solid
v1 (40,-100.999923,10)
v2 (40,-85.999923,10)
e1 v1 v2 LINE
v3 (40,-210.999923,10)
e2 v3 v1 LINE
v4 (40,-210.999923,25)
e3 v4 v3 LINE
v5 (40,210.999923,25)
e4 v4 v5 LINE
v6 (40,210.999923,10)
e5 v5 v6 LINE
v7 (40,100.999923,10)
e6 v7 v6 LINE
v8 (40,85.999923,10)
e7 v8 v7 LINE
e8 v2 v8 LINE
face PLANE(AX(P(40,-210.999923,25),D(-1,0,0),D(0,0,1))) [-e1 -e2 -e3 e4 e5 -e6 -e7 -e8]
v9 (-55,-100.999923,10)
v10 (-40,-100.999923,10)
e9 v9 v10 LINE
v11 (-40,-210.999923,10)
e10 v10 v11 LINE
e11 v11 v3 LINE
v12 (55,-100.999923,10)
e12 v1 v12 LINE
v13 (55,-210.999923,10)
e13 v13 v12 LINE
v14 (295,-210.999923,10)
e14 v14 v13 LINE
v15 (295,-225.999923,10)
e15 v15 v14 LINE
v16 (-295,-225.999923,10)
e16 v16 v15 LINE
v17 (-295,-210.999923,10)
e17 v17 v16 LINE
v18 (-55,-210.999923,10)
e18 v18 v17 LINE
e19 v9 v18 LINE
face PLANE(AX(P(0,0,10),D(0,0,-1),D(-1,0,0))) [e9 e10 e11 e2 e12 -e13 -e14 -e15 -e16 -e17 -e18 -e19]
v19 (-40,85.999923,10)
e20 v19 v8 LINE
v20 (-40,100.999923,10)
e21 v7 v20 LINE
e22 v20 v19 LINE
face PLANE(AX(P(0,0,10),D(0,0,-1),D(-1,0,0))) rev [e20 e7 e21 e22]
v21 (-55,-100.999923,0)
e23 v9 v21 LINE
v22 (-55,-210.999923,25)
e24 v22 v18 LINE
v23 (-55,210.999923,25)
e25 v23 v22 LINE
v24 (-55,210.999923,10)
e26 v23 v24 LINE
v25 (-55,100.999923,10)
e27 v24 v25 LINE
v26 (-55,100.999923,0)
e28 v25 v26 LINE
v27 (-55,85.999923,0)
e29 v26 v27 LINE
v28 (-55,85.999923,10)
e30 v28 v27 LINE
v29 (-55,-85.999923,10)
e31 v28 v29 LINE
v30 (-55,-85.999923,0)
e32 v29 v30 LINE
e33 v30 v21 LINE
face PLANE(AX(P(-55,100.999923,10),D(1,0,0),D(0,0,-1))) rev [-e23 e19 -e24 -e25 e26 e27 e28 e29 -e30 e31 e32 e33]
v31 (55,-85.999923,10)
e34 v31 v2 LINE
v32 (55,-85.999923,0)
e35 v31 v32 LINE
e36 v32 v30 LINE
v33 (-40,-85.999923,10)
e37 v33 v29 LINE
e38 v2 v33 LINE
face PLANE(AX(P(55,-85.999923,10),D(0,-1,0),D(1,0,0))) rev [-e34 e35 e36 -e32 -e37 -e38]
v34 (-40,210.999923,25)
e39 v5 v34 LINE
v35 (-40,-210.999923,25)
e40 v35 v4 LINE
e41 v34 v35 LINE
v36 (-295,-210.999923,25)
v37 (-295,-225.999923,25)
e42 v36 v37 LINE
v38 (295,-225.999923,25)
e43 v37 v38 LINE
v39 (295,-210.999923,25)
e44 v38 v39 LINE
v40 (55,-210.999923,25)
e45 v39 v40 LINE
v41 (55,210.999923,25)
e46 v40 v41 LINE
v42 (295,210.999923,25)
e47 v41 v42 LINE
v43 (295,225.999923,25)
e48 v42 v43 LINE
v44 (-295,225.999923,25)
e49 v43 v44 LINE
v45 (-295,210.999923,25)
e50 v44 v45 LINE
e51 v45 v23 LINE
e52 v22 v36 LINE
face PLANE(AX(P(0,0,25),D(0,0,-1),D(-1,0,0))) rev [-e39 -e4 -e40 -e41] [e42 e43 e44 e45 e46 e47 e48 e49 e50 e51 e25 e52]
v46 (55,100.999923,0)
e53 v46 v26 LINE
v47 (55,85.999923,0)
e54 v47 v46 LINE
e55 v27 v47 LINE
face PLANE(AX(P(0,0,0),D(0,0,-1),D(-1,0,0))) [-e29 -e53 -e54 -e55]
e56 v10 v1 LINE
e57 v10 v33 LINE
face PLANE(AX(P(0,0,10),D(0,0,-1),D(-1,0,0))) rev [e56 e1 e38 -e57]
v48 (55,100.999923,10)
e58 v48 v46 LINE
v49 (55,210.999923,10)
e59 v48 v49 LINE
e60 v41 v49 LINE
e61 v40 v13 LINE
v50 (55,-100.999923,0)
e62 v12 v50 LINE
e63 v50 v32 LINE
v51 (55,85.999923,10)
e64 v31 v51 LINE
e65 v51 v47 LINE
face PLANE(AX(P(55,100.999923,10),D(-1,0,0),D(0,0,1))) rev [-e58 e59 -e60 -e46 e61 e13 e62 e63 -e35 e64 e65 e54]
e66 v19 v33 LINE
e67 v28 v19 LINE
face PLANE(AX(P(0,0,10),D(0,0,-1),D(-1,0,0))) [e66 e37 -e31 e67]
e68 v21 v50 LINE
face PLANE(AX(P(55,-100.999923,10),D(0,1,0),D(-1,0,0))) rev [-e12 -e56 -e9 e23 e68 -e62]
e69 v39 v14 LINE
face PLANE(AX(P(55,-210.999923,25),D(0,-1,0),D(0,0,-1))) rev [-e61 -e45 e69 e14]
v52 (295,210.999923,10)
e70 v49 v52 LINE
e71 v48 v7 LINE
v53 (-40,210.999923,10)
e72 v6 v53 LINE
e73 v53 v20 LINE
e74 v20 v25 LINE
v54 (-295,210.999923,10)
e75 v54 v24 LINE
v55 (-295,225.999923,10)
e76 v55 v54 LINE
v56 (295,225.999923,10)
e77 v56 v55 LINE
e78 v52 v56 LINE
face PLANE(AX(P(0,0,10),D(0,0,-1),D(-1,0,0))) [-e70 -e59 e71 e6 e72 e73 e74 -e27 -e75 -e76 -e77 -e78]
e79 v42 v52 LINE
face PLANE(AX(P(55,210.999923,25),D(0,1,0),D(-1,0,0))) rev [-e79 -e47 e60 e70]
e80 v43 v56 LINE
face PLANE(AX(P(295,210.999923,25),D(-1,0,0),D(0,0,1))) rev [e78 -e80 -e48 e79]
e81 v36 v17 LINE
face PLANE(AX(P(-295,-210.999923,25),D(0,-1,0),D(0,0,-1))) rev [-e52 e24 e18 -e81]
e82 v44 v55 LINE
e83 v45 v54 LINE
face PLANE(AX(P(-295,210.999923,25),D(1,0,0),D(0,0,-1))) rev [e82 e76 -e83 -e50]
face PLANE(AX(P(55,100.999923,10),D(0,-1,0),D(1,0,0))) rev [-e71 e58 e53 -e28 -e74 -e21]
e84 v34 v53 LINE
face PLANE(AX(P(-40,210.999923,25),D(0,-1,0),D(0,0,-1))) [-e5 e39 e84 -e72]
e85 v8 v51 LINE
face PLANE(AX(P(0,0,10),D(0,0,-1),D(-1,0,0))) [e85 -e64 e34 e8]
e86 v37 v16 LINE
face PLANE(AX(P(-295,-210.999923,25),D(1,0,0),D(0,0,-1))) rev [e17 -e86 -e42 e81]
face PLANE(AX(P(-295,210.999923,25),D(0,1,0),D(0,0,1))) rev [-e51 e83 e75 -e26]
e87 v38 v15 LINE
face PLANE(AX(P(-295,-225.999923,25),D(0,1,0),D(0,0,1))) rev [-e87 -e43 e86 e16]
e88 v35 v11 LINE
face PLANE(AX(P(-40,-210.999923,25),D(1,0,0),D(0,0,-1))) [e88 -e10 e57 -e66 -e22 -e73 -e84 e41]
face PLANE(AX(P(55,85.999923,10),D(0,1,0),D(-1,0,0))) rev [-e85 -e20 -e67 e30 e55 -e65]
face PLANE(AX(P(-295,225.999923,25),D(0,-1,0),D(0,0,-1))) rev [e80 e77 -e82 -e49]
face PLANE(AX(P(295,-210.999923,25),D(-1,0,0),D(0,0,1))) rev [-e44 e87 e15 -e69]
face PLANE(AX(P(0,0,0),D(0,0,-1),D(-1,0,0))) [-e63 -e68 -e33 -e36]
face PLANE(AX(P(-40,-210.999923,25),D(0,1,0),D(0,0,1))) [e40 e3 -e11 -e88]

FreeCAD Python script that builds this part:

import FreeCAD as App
import Part
import Sketcher

V = App.Vector

doc = App.newDocument("Part")
body = doc.addObject("PartDesign::Body", "Body")

sketch1 = body.newObject("Sketcher::SketchObject", "Sketch")
sketch1.AttachmentSupport = (doc.getObject("XY_Plane"), [""])
sketch1.MapMode = "FlatFace"
sketch1.addGeometry([
    Part.LineSegment(V(-55, 101, 0), V(-55, 86, 0)),
    Part.LineSegment(V(-55, 86, 0), V(55, 86, 0)),
    Part.LineSegment(V(55, 86, 0), V(55, 101, 0)),
    Part.LineSegment(V(55, 101, 0), V(-55, 101, 0)),
], False)
sketch1.addConstraint([
    Sketcher.Constraint("Coincident", 0, 2, 1, 1),
    Sketcher.Constraint("Coincident", 1, 2, 2, 1),
    Sketcher.Constraint("Coincident", 2, 2, 3, 1),
    Sketcher.Constraint("Coincident", 3, 2, 0, 1),
    Sketcher.Constraint("Vertical", 0),
    Sketcher.Constraint("Horizontal", 1),
    Sketcher.Constraint("Vertical", 2),
    Sketcher.Constraint("Horizontal", 3),
    Sketcher.Constraint("DistanceX", 1, 1, 1, 2, 110.0),
    Sketcher.Constraint("DistanceY", 0, 2, 0, 1, 15.0),
    Sketcher.Constraint("DistanceX", 0, 2, -1, 1, 55.0),
    Sketcher.Constraint("DistanceY", -1, 1, 0, 2, 85.999923),
])
pad1 = body.newObject("PartDesign::Pad", "Pad")
pad1.Profile = sketch1
pad1.Length = 10
body2 = doc.addObject("PartDesign::Body", "Body001")

sketch2 = body2.newObject("Sketcher::SketchObject", "Sketch001")
sketch2.AttachmentSupport = (doc.getObject("XY_Plane001"), [""])
sketch2.MapMode = "FlatFace"
sketch2.addGeometry([
    Part.LineSegment(V(-55, -86, 0), V(-55, -101, 0)),
    Part.LineSegment(V(-55, -101, 0), V(55, -101, 0)),
    Part.LineSegment(V(55, -101, 0), V(55, -86, 0)),
    Part.LineSegment(V(55, -86, 0), V(-55, -86, 0)),
], False)
sketch2.addConstraint([
    Sketcher.Constraint("Coincident", 0, 2, 1, 1),
    Sketcher.Constraint("Coincident", 1, 2, 2, 1),
    Sketcher.Constraint("Coincident", 2, 2, 3, 1),
    Sketcher.Constraint("Coincident", 3, 2, 0, 1),
    Sketcher.Constraint("Vertical", 0),
    Sketcher.Constraint("Horizontal", 1),
    Sketcher.Constraint("Vertical", 2),
    Sketcher.Constraint("Horizontal", 3),
    Sketcher.Constraint("DistanceX", 1, 1, 1, 2, 110.0),
    Sketcher.Constraint("DistanceY", 0, 2, 0, 1, 15.0),
    Sketcher.Constraint("DistanceX", 0, 2, -1, 1, 55.0),
    Sketcher.Constraint("DistanceY", 0, 2, -1, 1, 100.999923),
])
pad2 = body2.newObject("PartDesign::Pad", "Pad001")
pad2.Profile = sketch2
pad2.Length = 10
body.AllowCompound = True
doc.recompute()

boolean = body.newObject("PartDesign::Boolean", "Boolean")
boolean.Type = "Fuse"
boolean.addObjects([body2])

sketch3 = body.newObject("Sketcher::SketchObject", "Sketch002")
sketch3.AttachmentSupport = (doc.getObject("XY_Plane"), [""])
sketch3.MapMode = "FlatFace"
sketch3.AttachmentOffset = App.Placement(V(0, 0, 10), App.Rotation())
sketch3.addGeometry([
    Part.LineSegment(V(55, -210.999923, 0), V(55, 210.999923, 0)),
    Part.LineSegment(V(55, 210.999923, 0), V(295, 210.999923, 0)),
    Part.LineSegment(V(295, 210.999923, 0), V(295, 225.999923, 0)),
    Part.LineSegment(V(295, 225.999923, 0), V(-295, 225.999923, 0)),
    Part.LineSegment(V(-295, 225.999923, 0), V(-295, 210.999923, 0)),
    Part.LineSegment(V(-295, 210.999923, 0), V(-55, 210.999923, 0)),
    Part.LineSegment(V(-55, 210.999923, 0), V(-55, -210.999923, 0)),
    Part.LineSegment(V(-55, -210.999923, 0), V(-295, -210.999923, 0)),
    Part.LineSegment(V(-295, -210.999923, 0), V(-295, -225.999923, 0)),
    Part.LineSegment(V(-295, -225.999923, 0), V(295, -225.999923, 0)),
    Part.LineSegment(V(295, -225.999923, 0), V(295, -210.999923, 0)),
    Part.LineSegment(V(295, -210.999923, 0), V(55, -210.999923, 0)),
    Part.LineSegment(V(40, -210.999923, 0), V(-40, -210.999923, 0)),
    Part.LineSegment(V(-40, -210.999923, 0), V(-40, 210.999923, 0)),
    Part.LineSegment(V(-40, 210.999923, 0), V(40, 210.999923, 0)),
    Part.LineSegment(V(40, 210.999923, 0), V(40, -210.999923, 0)),
], False)
sketch3.addConstraint([
    Sketcher.Constraint("Coincident", 0, 2, 1, 1),
    Sketcher.Constraint("Coincident", 1, 2, 2, 1),
    Sketcher.Constraint("Coincident", 2, 2, 3, 1),
    Sketcher.Constraint("Coincident", 3, 2, 4, 1),
    Sketcher.Constraint("Coincident", 4, 2, 5, 1),
    Sketcher.Constraint("Coincident", 5, 2, 6, 1),
    Sketcher.Constraint("Coincident", 6, 2, 7, 1),
    Sketcher.Constraint("Coincident", 7, 2, 8, 1),
    Sketcher.Constraint("Coincident", 8, 2, 9, 1),
    Sketcher.Constraint("Coincident", 9, 2, 10, 1),
    Sketcher.Constraint("Coincident", 10, 2, 11, 1),
    Sketcher.Constraint("Coincident", 11, 2, 0, 1),
    Sketcher.Constraint("Coincident", 12, 2, 13, 1),
    Sketcher.Constraint("Coincident", 13, 2, 14, 1),
    Sketcher.Constraint("Coincident", 14, 2, 15, 1),
    Sketcher.Constraint("Coincident", 15, 2, 12, 1),
    Sketcher.Constraint("Vertical", 0),
    Sketcher.Constraint("Horizontal", 1),
    Sketcher.Constraint("Vertical", 2),
    Sketcher.Constraint("Horizontal", 3),
    Sketcher.Constraint("Vertical", 4),
    Sketcher.Constraint("Horizontal", 5),
    Sketcher.Constraint("Vertical", 6),
    Sketcher.Constraint("Horizontal", 7),
    Sketcher.Constraint("Vertical", 8),
    Sketcher.Constraint("Horizontal", 9),
    Sketcher.Constraint("Vertical", 10),
    Sketcher.Constraint("Horizontal", 11),
    Sketcher.Constraint("Horizontal", 12),
    Sketcher.Constraint("Vertical", 13),
    Sketcher.Constraint("Horizontal", 14),
    Sketcher.Constraint("Vertical", 15),
    Sketcher.Constraint("Symmetric", 0, 2, 6, 2, -1, 1),
    Sketcher.Constraint("Symmetric", 2, 2, 8, 2, -1, 1),
    Sketcher.Constraint("Symmetric", 4, 2, 10, 2, -1, 1),
    Sketcher.Constraint("Symmetric", 12, 2, 14, 2, -1, 1),
    Sketcher.Constraint("Symmetric", 1, 2, 4, 2, -2),
    Sketcher.Constraint("Horizontal", 11, 2, 12, 2),
    Sketcher.Constraint("DistanceX", 1, 1, 1, 2, 240.0),
    Sketcher.Constraint("DistanceX", 3, 2, 3, 1, 590.0),
    Sketcher.Constraint("DistanceX", 12, 2, 12, 1, 80.0),
    Sketcher.Constraint("DistanceY", 2, 1, 2, 2, 15.0),
    Sketcher.Constraint("DistanceY", 0, 1, 0, 2, 421.999846),
])
pad3 = body.newObject("PartDesign::Pad", "Pad002")
pad3.Profile = sketch3
pad3.Length = 15

doc.recompute()
